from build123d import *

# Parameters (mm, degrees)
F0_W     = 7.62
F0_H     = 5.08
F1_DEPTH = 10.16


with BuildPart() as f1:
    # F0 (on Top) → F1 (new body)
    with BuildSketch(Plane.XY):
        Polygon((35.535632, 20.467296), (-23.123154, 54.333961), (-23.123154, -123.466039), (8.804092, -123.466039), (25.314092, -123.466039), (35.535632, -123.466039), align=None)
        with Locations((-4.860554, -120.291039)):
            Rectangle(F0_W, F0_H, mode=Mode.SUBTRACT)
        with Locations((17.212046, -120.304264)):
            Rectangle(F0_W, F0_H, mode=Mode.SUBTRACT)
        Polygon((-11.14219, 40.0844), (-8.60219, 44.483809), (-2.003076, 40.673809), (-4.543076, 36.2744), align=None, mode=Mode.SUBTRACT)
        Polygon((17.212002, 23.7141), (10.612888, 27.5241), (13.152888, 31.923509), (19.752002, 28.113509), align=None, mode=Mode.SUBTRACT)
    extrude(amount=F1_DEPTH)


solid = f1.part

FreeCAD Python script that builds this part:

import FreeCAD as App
import Part
import Sketcher
Q = App.Units.Quantity

doc = App.newDocument("Part")
params = doc.addObject("Spreadsheet::Sheet", "Params")
for row, (alias, value) in enumerate([
    ("sketch1_height", "7 in"),
    ("sketch1_width", "0.3 in"),
    ("sketch1_height2", "0.2 in"),
    ("sketch1_length", "0.3 in"),
    ("sketch1_length2", "0.2 in"),
    ("pad1_length", "0.4 in"),
], start=1):
    params.set(f"A{row}", alias)
    params.set(f"B{row}", "=" + value)
    params.setAlias(f"B{row}", alias)

body = doc.addObject("PartDesign::Body", "Body")

# Sketch on XY plane
sketch1 = doc.addObject("Sketcher::SketchObject", "Sketch")
body.addObject(sketch1)
sketch1.AttachmentSupport = (doc.XY_Plane, [""])
sketch1.MapMode = "FlatFace"
sketch1.addGeometry([
    Part.LineSegment(App.Vector(36, 20, 0), App.Vector(-23, 54, 0)),  # 0
    Part.LineSegment(App.Vector(-23, 54, 0), App.Vector(-23, -123, 0)),  # 1
    Part.LineSegment(App.Vector(-23, -123, 0), App.Vector(36, -123, 0)),  # 2
    Part.LineSegment(App.Vector(36, -123, 0), App.Vector(36, 20, 0)),  # 3
    Part.LineSegment(App.Vector(-1, -123, 0), App.Vector(-9, -123, 0)),  # 4
    Part.LineSegment(App.Vector(-9, -123, 0), App.Vector(-9, -118, 0)),  # 5
    Part.LineSegment(App.Vector(-9, -118, 0), App.Vector(-1, -118, 0)),  # 6
    Part.LineSegment(App.Vector(-1, -118, 0), App.Vector(-1, -123, 0)),  # 7
    Part.LineSegment(App.Vector(21, -123, 0), App.Vector(13, -123, 0)),  # 8
    Part.LineSegment(App.Vector(13, -123, 0), App.Vector(13, -118, 0)),  # 9
    Part.LineSegment(App.Vector(13, -118, 0), App.Vector(21, -118, 0)),  # 10
    Part.LineSegment(App.Vector(21, -118, 0), App.Vector(21, -123, 0)),  # 11
    Part.LineSegment(App.Vector(-5, 36, 0), App.Vector(-11, 40, 0)),  # 12
    Part.LineSegment(App.Vector(-11, 40, 0), App.Vector(-9, 44, 0)),  # 13
    Part.LineSegment(App.Vector(-9, 44, 0), App.Vector(-2, 41, 0)),  # 14
    Part.LineSegment(App.Vector(-2, 41, 0), App.Vector(-5, 36, 0)),  # 15
    Part.LineSegment(App.Vector(20, 28, 0), App.Vector(17, 24, 0)),  # 16
    Part.LineSegment(App.Vector(17, 24, 0), App.Vector(11, 28, 0)),  # 17
    Part.LineSegment(App.Vector(11, 28, 0), App.Vector(13, 32, 0)),  # 18
    Part.LineSegment(App.Vector(13, 32, 0), App.Vector(20, 28, 0)),  # 19
], False)
sketch1.addConstraint([
    Sketcher.Constraint("Coincident", 0, 2, 1, 1),
    Sketcher.Constraint("Coincident", 1, 2, 2, 1),
    Sketcher.Constraint("Coincident", 2, 2, 3, 1),
    Sketcher.Constraint("Coincident", 3, 2, 0, 1),
    Sketcher.Constraint("Coincident", 4, 2, 5, 1),
    Sketcher.Constraint("Coincident", 5, 2, 6, 1),
    Sketcher.Constraint("Coincident", 6, 2, 7, 1),
    Sketcher.Constraint("Coincident", 7, 2, 4, 1),
    Sketcher.Constraint("Coincident", 8, 2, 9, 1),
    Sketcher.Constraint("Coincident", 9, 2, 10, 1),
    Sketcher.Constraint("Coincident", 10, 2, 11, 1),
    Sketcher.Constraint("Coincident", 11, 2, 8, 1),
    Sketcher.Constraint("Coincident", 12, 2, 13, 1),
    Sketcher.Constraint("Coincident", 13, 2, 14, 1),
    Sketcher.Constraint("Coincident", 14, 2, 15, 1),
    Sketcher.Constraint("Coincident", 15, 2, 12, 1),
    Sketcher.Constraint("Coincident", 16, 2, 17, 1),
    Sketcher.Constraint("Coincident", 17, 2, 18, 1),
    Sketcher.Constraint("Coincident", 18, 2, 19, 1),
    Sketcher.Constraint("Coincident", 19, 2, 16, 1),
    Sketcher.Constraint("Vertical", 1),
    Sketcher.Constraint("Horizontal", 2),
    Sketcher.Constraint("Vertical", 3),
    Sketcher.Constraint("Horizontal", 4),
    Sketcher.Constraint("Vertical", 5),
    Sketcher.Constraint("Horizontal", 6),
    Sketcher.Constraint("Vertical", 7),
    Sketcher.Constraint("Horizontal", 8),
    Sketcher.Constraint("Vertical", 9),
    Sketcher.Constraint("Horizontal", 10),
    Sketcher.Constraint("Vertical", 11),
    Sketcher.Constraint("Parallel", 0, 12),
    Sketcher.Constraint("Perpendicular", 12, 13),
    Sketcher.Constraint("Perpendicular", 13, 14),
    Sketcher.Constraint("Perpendicular", 14, 15),
    Sketcher.Constraint("Parallel", 15, 16),
    Sketcher.Constraint("Perpendicular", 16, 17),
    Sketcher.Constraint("Perpendicular", 17, 18),
    Sketcher.Constraint("Perpendicular", 18, 19),
    Sketcher.Constraint("Equal", 6, 8),
    Sketcher.Constraint("Equal", 7, 9),
    Sketcher.Constraint("Equal", 15, 16),
    Sketcher.Constraint("Equal", 14, 17),
    Sketcher.Constraint("DistanceY", 1, 2, 1, 1, Q("7 in")),
    Sketcher.Constraint("DistanceX", 4, 2, 4, 1, Q("0.3 in")),
    Sketcher.Constraint("DistanceY", 5, 1, 5, 2, Q("0.2 in")),
    Sketcher.Constraint("Angle", 0, Q("150.000001 deg")),
    Sketcher.Constraint("Distance", 12, Q("0.3 in")),
    Sketcher.Constraint("Distance", 13, Q("0.2 in")),
    Sketcher.Constraint("DistanceX", 1, 2, 4, 2, Q("0.569 in")),
    Sketcher.Constraint("DistanceY", 1, 2, 4, 2, Q("0.025 in")),
    Sketcher.Constraint("DistanceX", 7, 2, 8, 2, Q("0.569 in")),
    Sketcher.Constraint("DistanceY", 16, 2, 15, 2, Q("0.4945 in")),
    Sketcher.Constraint("DistanceY", -1, 1, 12, 2, Q("40.0844 mm")),
    Sketcher.Constraint("DistanceX", -1, 1, 16, 2, Q("17.212002 mm")),
    Sketcher.Constraint("Distance", 0, Q("67.733331 mm")),
    Sketcher.Constraint("DistanceY", -1, 1, 0, 2, Q("54.333961 mm")),
    Sketcher.Constraint("DistanceX", 12, 2, -1, 1, Q("11.14219 mm")),
    Sketcher.Constraint("DistanceX", 0, 2, 15, 2, Q("18.580078 mm")),
    Sketcher.Constraint("DistanceY", 8, 2, -1, 1, Q("122.844264 mm")),
])
sketch1.setExpression("Constraints[43]", "Params.sketch1_height")
sketch1.setExpression("Constraints[44]", "Params.sketch1_width")
sketch1.setExpression("Constraints[45]", "Params.sketch1_height2")
sketch1.setExpression("Constraints[47]", "Params.sketch1_length")
sketch1.setExpression("Constraints[48]", "Params.sketch1_length2")
pad1 = doc.addObject("PartDesign::Pad", "Pad")
body.addObject(pad1)
pad1.Profile = sketch1
pad1.setExpression("Length", "Params.pad1_length")

doc.recompute()
